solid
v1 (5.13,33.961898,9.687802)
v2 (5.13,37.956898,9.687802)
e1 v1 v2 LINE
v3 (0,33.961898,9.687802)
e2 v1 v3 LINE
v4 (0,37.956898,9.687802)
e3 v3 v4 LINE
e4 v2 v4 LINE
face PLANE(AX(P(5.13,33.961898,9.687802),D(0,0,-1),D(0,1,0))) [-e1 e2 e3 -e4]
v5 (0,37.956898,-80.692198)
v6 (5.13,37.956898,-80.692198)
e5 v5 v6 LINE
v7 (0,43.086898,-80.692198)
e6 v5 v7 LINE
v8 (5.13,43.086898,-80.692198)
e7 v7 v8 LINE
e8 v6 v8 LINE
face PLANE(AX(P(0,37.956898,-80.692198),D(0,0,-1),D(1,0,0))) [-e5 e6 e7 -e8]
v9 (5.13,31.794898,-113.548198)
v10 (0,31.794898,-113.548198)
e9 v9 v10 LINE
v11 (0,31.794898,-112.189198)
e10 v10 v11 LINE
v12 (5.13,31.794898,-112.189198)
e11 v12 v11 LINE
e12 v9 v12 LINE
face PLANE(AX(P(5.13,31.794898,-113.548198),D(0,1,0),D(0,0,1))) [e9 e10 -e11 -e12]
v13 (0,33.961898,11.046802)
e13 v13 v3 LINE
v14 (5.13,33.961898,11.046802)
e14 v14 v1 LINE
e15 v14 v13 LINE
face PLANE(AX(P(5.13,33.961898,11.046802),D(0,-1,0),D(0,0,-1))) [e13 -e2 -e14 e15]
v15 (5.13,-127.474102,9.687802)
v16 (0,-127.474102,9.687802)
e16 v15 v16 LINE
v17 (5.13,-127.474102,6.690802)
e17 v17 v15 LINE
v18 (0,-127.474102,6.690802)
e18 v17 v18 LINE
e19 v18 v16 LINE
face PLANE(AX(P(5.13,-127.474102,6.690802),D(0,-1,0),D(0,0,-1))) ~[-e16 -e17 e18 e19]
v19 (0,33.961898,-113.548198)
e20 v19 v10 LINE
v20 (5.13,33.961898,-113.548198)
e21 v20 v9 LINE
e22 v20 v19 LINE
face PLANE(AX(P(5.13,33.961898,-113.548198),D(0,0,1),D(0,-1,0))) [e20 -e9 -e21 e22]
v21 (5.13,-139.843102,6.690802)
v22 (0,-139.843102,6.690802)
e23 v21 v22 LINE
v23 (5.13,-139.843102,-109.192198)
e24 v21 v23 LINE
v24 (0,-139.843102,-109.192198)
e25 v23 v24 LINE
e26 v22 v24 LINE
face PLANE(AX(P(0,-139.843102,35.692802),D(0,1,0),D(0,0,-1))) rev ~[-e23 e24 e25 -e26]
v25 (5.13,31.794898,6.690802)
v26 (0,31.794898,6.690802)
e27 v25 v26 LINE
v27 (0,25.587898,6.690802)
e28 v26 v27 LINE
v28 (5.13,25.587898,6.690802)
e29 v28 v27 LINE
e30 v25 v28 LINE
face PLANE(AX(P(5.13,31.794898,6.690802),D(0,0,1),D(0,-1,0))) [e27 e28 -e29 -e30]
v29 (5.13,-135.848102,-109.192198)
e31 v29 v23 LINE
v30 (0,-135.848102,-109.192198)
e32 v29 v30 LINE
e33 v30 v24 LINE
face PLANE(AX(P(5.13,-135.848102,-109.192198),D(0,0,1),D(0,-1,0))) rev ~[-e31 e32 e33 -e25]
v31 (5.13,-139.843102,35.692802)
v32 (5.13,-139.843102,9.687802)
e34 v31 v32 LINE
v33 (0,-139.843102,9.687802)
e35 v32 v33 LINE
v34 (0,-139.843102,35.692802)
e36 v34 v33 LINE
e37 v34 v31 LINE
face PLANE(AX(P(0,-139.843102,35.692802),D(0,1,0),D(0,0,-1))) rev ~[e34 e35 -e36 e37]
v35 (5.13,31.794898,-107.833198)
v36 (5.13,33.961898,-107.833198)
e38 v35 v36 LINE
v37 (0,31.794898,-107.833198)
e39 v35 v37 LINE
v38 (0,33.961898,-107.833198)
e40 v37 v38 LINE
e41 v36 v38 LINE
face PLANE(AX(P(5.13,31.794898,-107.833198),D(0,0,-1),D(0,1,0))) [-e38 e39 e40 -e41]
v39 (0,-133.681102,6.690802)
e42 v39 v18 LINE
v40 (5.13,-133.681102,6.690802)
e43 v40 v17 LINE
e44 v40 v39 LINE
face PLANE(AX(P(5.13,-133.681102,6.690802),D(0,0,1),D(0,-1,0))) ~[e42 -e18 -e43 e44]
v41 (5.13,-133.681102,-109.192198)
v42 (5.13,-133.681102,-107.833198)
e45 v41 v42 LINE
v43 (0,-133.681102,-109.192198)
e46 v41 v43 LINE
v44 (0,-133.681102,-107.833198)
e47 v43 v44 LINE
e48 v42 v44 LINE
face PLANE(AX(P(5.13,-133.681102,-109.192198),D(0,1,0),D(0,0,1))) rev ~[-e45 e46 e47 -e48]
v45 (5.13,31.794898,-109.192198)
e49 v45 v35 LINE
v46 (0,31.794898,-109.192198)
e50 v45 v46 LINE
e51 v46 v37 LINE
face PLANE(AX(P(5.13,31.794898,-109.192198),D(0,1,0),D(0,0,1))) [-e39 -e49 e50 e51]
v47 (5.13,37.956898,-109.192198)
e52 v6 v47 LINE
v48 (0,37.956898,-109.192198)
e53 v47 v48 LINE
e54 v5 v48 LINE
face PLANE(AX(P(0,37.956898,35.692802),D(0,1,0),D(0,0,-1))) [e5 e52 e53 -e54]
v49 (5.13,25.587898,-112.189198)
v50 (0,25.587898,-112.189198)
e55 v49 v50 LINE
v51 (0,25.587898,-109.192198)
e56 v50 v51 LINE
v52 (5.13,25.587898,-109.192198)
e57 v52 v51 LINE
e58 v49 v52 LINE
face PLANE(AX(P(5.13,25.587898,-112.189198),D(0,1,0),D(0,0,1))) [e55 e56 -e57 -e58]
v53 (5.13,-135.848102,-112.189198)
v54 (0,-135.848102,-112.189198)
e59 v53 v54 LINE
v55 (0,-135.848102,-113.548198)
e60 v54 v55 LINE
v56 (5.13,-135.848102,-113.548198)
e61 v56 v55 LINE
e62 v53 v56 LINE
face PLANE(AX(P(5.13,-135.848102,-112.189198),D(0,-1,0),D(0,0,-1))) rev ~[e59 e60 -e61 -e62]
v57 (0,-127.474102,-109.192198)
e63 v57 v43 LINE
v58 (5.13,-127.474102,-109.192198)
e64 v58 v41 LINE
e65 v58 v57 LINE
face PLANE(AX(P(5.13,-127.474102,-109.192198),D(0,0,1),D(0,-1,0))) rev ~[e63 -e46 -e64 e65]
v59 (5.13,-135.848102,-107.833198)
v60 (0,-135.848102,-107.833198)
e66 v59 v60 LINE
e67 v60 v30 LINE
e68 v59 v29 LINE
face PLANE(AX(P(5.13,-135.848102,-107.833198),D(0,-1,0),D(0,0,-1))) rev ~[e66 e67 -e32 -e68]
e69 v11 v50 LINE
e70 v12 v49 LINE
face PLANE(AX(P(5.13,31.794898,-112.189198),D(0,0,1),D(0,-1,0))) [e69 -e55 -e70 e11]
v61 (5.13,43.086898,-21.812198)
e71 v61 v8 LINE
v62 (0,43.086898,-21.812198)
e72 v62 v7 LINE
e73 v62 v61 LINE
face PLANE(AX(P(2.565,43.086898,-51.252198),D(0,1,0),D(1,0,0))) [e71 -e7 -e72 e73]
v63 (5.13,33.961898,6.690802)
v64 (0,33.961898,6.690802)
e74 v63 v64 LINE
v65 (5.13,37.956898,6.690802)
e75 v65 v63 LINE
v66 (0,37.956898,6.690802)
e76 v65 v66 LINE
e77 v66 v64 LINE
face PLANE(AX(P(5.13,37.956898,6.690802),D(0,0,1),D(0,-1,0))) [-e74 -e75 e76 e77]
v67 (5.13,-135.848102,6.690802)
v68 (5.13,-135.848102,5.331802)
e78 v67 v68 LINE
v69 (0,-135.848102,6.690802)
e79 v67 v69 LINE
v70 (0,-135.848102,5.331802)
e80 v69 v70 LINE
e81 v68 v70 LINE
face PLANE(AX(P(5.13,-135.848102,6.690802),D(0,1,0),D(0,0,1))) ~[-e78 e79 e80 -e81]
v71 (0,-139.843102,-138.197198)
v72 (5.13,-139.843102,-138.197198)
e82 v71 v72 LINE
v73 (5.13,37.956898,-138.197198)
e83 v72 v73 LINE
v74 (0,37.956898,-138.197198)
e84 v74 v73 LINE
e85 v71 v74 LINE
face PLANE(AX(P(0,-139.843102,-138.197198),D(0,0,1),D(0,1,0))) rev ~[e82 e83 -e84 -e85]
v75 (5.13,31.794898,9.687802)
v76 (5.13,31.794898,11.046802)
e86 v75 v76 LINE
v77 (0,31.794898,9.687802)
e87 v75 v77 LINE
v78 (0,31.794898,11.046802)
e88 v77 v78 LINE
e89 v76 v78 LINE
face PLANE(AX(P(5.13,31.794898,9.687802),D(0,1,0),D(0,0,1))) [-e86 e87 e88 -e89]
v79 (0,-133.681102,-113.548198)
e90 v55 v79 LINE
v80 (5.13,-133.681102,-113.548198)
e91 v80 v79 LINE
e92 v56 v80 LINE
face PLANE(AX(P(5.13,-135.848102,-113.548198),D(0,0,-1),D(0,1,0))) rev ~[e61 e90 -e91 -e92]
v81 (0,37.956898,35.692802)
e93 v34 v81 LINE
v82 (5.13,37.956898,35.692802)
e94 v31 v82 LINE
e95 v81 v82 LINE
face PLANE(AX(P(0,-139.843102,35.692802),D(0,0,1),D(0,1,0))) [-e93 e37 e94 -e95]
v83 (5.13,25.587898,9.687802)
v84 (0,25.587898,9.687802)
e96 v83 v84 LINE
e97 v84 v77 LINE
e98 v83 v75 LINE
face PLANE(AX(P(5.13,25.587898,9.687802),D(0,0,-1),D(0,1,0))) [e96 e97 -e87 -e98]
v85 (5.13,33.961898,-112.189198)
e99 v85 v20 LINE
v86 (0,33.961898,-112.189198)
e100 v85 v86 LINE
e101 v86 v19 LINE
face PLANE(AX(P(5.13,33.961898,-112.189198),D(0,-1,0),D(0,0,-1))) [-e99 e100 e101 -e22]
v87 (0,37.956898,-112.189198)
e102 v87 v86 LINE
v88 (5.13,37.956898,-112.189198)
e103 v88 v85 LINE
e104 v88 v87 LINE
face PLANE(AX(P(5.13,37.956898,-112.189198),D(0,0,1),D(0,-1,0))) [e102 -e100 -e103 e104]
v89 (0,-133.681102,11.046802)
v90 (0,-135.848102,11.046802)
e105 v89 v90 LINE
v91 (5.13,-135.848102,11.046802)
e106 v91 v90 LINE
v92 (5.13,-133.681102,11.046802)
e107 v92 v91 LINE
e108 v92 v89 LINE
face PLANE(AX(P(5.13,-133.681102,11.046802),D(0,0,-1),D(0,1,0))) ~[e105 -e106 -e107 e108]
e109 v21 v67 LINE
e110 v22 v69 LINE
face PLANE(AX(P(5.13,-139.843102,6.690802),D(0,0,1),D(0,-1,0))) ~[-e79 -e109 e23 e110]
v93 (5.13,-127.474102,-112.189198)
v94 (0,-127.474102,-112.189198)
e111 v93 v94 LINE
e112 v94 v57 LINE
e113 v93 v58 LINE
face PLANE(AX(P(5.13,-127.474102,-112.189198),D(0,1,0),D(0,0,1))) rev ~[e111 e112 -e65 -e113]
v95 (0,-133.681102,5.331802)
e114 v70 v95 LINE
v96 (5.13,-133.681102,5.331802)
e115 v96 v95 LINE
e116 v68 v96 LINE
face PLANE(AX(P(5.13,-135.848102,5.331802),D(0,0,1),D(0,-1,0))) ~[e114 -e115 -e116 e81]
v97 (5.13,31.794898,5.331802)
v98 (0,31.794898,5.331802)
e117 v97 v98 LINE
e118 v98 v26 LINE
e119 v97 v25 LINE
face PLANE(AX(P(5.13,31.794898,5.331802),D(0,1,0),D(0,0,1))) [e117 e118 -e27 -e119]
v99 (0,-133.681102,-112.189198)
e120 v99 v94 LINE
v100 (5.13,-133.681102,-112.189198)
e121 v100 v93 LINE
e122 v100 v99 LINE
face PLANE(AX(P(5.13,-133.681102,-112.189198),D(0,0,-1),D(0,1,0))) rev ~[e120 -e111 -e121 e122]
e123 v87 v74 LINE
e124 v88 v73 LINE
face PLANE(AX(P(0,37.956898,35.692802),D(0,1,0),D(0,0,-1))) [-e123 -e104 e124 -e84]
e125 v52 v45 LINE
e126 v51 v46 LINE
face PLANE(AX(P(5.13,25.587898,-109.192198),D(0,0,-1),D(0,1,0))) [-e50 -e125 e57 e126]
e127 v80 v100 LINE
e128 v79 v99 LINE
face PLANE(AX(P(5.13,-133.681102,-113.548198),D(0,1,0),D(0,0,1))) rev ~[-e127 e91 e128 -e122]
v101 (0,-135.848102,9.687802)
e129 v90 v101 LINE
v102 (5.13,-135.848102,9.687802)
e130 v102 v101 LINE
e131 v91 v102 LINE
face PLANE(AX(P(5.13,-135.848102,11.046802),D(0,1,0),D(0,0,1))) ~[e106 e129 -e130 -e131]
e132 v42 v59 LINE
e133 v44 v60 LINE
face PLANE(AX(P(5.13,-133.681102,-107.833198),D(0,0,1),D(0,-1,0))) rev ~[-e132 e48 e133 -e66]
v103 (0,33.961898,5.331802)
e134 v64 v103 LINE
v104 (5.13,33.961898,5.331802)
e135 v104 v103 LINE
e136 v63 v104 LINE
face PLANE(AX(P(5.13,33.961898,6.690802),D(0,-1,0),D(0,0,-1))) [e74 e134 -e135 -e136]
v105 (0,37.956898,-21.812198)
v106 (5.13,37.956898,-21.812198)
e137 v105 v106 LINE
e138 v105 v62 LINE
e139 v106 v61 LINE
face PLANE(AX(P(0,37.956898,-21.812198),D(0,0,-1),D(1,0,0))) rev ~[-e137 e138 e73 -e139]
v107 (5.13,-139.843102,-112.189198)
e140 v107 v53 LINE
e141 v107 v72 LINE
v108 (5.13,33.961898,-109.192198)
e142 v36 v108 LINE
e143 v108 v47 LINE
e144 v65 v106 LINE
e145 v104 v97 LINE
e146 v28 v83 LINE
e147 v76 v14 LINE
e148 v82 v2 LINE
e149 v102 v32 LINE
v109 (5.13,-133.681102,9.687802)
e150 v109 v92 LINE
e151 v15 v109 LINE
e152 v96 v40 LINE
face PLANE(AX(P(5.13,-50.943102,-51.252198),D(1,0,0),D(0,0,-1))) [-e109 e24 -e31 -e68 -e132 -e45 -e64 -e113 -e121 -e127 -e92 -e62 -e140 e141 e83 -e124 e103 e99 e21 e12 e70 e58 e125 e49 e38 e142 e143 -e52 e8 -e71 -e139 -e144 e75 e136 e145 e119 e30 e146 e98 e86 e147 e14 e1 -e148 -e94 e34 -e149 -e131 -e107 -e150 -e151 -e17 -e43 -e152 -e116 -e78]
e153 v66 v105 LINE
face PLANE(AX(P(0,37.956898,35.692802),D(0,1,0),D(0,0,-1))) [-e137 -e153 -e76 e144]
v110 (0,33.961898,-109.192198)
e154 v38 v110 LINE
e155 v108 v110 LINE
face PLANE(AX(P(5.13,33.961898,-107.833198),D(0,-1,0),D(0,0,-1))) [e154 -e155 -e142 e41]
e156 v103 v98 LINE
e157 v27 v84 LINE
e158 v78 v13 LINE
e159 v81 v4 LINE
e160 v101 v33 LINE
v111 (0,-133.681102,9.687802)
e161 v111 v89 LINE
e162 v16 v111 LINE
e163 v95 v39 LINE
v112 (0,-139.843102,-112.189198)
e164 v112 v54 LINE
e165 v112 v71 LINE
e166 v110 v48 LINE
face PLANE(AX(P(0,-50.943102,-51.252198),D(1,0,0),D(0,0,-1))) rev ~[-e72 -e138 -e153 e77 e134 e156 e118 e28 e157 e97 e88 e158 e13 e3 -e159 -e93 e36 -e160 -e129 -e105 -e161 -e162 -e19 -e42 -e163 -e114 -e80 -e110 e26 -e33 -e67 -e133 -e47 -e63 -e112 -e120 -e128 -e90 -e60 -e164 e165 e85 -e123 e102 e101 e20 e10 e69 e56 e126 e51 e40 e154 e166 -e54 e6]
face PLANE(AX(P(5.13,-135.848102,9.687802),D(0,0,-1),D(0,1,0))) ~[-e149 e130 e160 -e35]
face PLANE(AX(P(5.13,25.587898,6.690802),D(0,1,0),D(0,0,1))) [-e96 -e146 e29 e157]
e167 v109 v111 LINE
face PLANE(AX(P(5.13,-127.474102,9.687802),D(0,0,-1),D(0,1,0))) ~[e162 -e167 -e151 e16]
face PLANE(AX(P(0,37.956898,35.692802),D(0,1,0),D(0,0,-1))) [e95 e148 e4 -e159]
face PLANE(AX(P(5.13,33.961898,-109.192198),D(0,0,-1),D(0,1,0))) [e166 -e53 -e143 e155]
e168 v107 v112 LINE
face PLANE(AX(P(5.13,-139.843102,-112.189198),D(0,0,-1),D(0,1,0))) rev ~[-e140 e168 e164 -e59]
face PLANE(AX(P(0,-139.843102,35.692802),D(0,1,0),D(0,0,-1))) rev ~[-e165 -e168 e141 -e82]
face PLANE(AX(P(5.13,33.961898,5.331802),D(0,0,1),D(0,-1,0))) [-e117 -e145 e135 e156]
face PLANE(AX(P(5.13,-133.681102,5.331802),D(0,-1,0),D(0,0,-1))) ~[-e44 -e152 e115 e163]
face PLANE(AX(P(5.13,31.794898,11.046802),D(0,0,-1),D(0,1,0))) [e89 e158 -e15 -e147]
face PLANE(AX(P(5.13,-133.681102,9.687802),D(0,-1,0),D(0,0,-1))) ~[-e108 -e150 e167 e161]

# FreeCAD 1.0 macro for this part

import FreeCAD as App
import Part
import Sketcher
Q = App.Units.Quantity

doc = App.newDocument("Part")
body = doc.addObject("PartDesign::Body", "Body")

# Sketch on YZ plane
sketch1 = body.newObject("Sketcher::SketchObject", "Sketch")
sketch1.AttachmentSupport = (doc.getObject("YZ_Plane"), [""])
sketch1.MapMode = "FlatFace"
sketch1.addGeometry([
    Part.LineSegment(App.Vector(38, 36, 0), App.Vector(-140, 36, 0)),
    Part.LineSegment(App.Vector(-140, 36, 0), App.Vector(-140, -138, 0)),
    Part.LineSegment(App.Vector(-140, -138, 0), App.Vector(38, -138, 0)),
    Part.LineSegment(App.Vector(38, -138, 0), App.Vector(38, 36, 0)),
], False)
sketch1.addConstraint([
    Sketcher.Constraint("Coincident", 0, 2, 1, 1),
    Sketcher.Constraint("Coincident", 1, 2, 2, 1),
    Sketcher.Constraint("Coincident", 2, 2, 3, 1),
    Sketcher.Constraint("Coincident", 3, 2, 0, 1),
    Sketcher.Constraint("Horizontal", 0),
    Sketcher.Constraint("Vertical", 1),
    Sketcher.Constraint("Horizontal", 2),
    Sketcher.Constraint("Vertical", 3),
    Sketcher.Constraint("DistanceX", 0, 2, 0, 1, Q("7 in")),
    Sketcher.Constraint("DistanceY", 1, 2, 1, 1, 173.89),
    Sketcher.Constraint("DistanceX", 0, 2, -1, 1, 139.843102),
    Sketcher.Constraint("DistanceY", -1, 1, 0, 2, 35.692802),
])
pad1 = body.newObject("PartDesign::Pad", "Pad")
pad1.Profile = sketch1
pad1.Length = 5.13

# Sketch on YZ plane
sketch2 = body.newObject("Sketcher::SketchObject", "Sketch001")
sketch2.AttachmentSupport = (doc.getObject("YZ_Plane"), [""])
sketch2.MapMode = "FlatFace"
sketch2.AttachmentOffset = App.Placement(App.Vector(0, 0, 5.13), App.Rotation())
sketch2.addGeometry([
    Part.LineSegment(App.Vector(38, 6.7, 0), App.Vector(38, 9.7, 0)),  # 0
    Part.LineSegment(App.Vector(38, 9.7, 0), App.Vector(34, 9.7, 0)),  # 1
    Part.LineSegment(App.Vector(34, 9.7, 0), App.Vector(34, 11, 0)),  # 2
    Part.LineSegment(App.Vector(34, 11, 0), App.Vector(31.8, 11, 0)),  # 3
    Part.LineSegment(App.Vector(31.8, 11, 0), App.Vector(31.8, 9.7, 0)),  # 4
    Part.LineSegment(App.Vector(31.8, 9.7, 0), App.Vector(25.6, 9.7, 0)),  # 5
    Part.LineSegment(App.Vector(25.6, 9.7, 0), App.Vector(25.6, 6.7, 0)),  # 6
    Part.LineSegment(App.Vector(25.6, 6.7, 0), App.Vector(31.8, 6.7, 0)),  # 7
    Part.LineSegment(App.Vector(31.8, 6.7, 0), App.Vector(31.8, 5.3, 0)),  # 8
    Part.LineSegment(App.Vector(31.8, 5.3, 0), App.Vector(34, 5.3, 0)),  # 9
    Part.LineSegment(App.Vector(34, 5.3, 0), App.Vector(34, 6.7, 0)),  # 10
    Part.LineSegment(App.Vector(34, 6.7, 0), App.Vector(38, 6.7, 0)),  # 11
], False)
sketch2.addConstraint([
    Sketcher.Constraint("Coincident", 0, 2, 1, 1),
    Sketcher.Constraint("Coincident", 1, 2, 2, 1),
    Sketcher.Constraint("Coincident", 2, 2, 3, 1),
    Sketcher.Constraint("Coincident", 3, 2, 4, 1),
    Sketcher.Constraint("Coincident", 4, 2, 5, 1),
    Sketcher.Constraint("Coincident", 5, 2, 6, 1),
    Sketcher.Constraint("Coincident", 6, 2, 7, 1),
    Sketcher.Constraint("Coincident", 7, 2, 8, 1),
    Sketcher.Constraint("Coincident", 8, 2, 9, 1),
    Sketcher.Constraint("Coincident", 9, 2, 10, 1),
    Sketcher.Constraint("Coincident", 10, 2, 11, 1),
    Sketcher.Constraint("Coincident", 11, 2, 0, 1),
    Sketcher.Constraint("Vertical", 0),
    Sketcher.Constraint("Horizontal", 1),
    Sketcher.Constraint("Vertical", 2),
    Sketcher.Constraint("Horizontal", 3),
    Sketcher.Constraint("Vertical", 4),
    Sketcher.Constraint("Horizontal", 5),
    Sketcher.Constraint("Vertical", 6),
    Sketcher.Constraint("Horizontal", 7),
    Sketcher.Constraint("Vertical", 8),
    Sketcher.Constraint("Horizontal", 9),
    Sketcher.Constraint("Vertical", 10),
    Sketcher.Constraint("Horizontal", 11),
    Sketcher.Constraint("Horizontal", 1, 2, 4, 2),
    Sketcher.Constraint("Horizontal", 7, 2, 10, 2),
    Sketcher.Constraint("Vertical", 4, 2, 7, 2),
    Sketcher.Constraint("Vertical", 2, 2, 9, 2),
    Sketcher.Constraint("Equal", 4, 8),
    Sketcher.Constraint("DistanceY", 8, 2, 3, 2, Q("0.225 in")),
    Sketcher.Constraint("DistanceX", 1, 2, 1, 1, 3.995),
    Sketcher.Constraint("DistanceX", 3, 2, 3, 1, 2.167),
    Sketcher.Constraint("DistanceX", 5, 2, 5, 1, 6.207),
    Sketcher.Constraint("DistanceY", 0, 1, 0, 2, 2.997),
    Sketcher.Constraint("DistanceX", -1, 1, 0, 2, 37.956898),
    Sketcher.Constraint("DistanceY", -1, 1, 0, 2, 9.687802),
])
pocket1 = body.newObject("PartDesign::Pocket", "Pocket")
pocket1.Profile = sketch2
pocket1.Length = 5.13
doc.recompute()

linearpattern = body.newObject("PartDesign::LinearPattern", "LinearPattern")
linearpattern.Originals = [pocket1]
linearpattern.Direction = (doc.getObject("Z_Axis"), [""])
linearpattern.Mode = "offset"
linearpattern.Offset = 118.88
linearpattern.Occurrences = 2
linearpattern.Reversed = True
body.Tip = linearpattern
doc.recompute()

datumplane = body.newObject("PartDesign::Plane", "DatumPlane")
datumplane.AttachmentSupport = (doc.getObject("XZ_Plane"), [""])
datumplane.MapMode = "FlatFace"
datumplane.AttachmentOffset = App.Placement(App.Vector(0, 0, 50.943102), App.Rotation())
mirrored = body.newObject("PartDesign::Mirrored", "Mirrored")
mirrored.Originals = [pocket1]
mirrored.MirrorPlane = (datumplane, [""])
body.Tip = mirrored

# Sketch on YZ plane
sketch3 = body.newObject("Sketcher::SketchObject", "Sketch002")
sketch3.AttachmentSupport = (doc.getObject("YZ_Plane"), [""])
sketch3.MapMode = "FlatFace"
sketch3.AttachmentOffset = App.Placement(App.Vector(0, 0, 5.13), App.Rotation())
sketch3.addGeometry([
    Part.LineSegment(App.Vector(-139.8, -109.2, 0), App.Vector(-139.8, -112.2, 0)),  # 0
    Part.LineSegment(App.Vector(-139.8, -112.2, 0), App.Vector(-135.8, -112.2, 0)),  # 1
    Part.LineSegment(App.Vector(-135.8, -112.2, 0), App.Vector(-135.8, -113.5, 0)),  # 2
    Part.LineSegment(App.Vector(-135.8, -113.5, 0), App.Vector(-133.7, -113.5, 0)),  # 3
    Part.LineSegment(App.Vector(-133.7, -113.5, 0), App.Vector(-133.7, -112.2, 0)),  # 4
    Part.LineSegment(App.Vector(-133.7, -112.2, 0), App.Vector(-127.5, -112.2, 0)),  # 5
    Part.LineSegment(App.Vector(-127.5, -112.2, 0), App.Vector(-127.5, -109.2, 0)),  # 6
    Part.LineSegment(App.Vector(-127.5, -109.2, 0), App.Vector(-133.7, -109.2, 0)),  # 7
    Part.LineSegment(App.Vector(-133.7, -109.2, 0), App.Vector(-133.7, -107.8, 0)),  # 8
    Part.LineSegment(App.Vector(-133.7, -107.8, 0), App.Vector(-135.8, -107.8, 0)),  # 9
    Part.LineSegment(App.Vector(-135.8, -107.8, 0), App.Vector(-135.8, -109.2, 0)),  # 10
    Part.LineSegment(App.Vector(-135.8, -109.2, 0), App.Vector(-139.8, -109.2, 0)),  # 11
], False)
sketch3.addConstraint([
    Sketcher.Constraint("Coincident", 0, 2, 1, 1),
    Sketcher.Constraint("Coincident", 1, 2, 2, 1),
    Sketcher.Constraint("Coincident", 2, 2, 3, 1),
    Sketcher.Constraint("Coincident", 3, 2, 4, 1),
    Sketcher.Constraint("Coincident", 4, 2, 5, 1),
    Sketcher.Constraint("Coincident", 5, 2, 6, 1),
    Sketcher.Constraint("Coincident", 6, 2, 7, 1),
    Sketcher.Constraint("Coincident", 7, 2, 8, 1),
    Sketcher.Constraint("Coincident", 8, 2, 9, 1),
    Sketcher.Constraint("Coincident", 9, 2, 10, 1),
    Sketcher.Constraint("Coincident", 10, 2, 11, 1),
    Sketcher.Constraint("Coincident", 11, 2, 0, 1),
    Sketcher.Constraint("Vertical", 0),
    Sketcher.Constraint("Horizontal", 1),
    Sketcher.Constraint("Vertical", 2),
    Sketcher.Constraint("Horizontal", 3),
    Sketcher.Constraint("Vertical", 4),
    Sketcher.Constraint("Horizontal", 5),
    Sketcher.Constraint("Vertical", 6),
    Sketcher.Constraint("Horizontal", 7),
    Sketcher.Constraint("Vertical", 8),
    Sketcher.Constraint("Horizontal", 9),
    Sketcher.Constraint("Vertical", 10),
    Sketcher.Constraint("Horizontal", 11),
    Sketcher.Constraint("Horizontal", 1, 2, 4, 2),
    Sketcher.Constraint("Horizontal", 7, 2, 10, 2),
    Sketcher.Constraint("Vertical", 4, 2, 7, 2),
    Sketcher.Constraint("Vertical", 2, 2, 9, 2),
    Sketcher.Constraint("Equal", 4, 8),
    Sketcher.Constraint("DistanceY", 3, 2, 8, 2, Q("0.225 in")),
    Sketcher.Constraint("DistanceX", 1, 1, 1, 2, 3.995),
    Sketcher.Constraint("DistanceX", 3, 1, 3, 2, 2.167),
    Sketcher.Constraint("DistanceX", 5, 1, 5, 2, 6.207),
    Sketcher.Constraint("DistanceY", 0, 2, 0, 1, 2.997),
    Sketcher.Constraint("DistanceX", 0, 2, -1, 1, 139.843102),
    Sketcher.Constraint("DistanceY", 0, 2, -1, 1, 112.189198),
])
pocket2 = body.newObject("PartDesign::Pocket", "Pocket001")
pocket2.Profile = sketch3
pocket2.Length = 5.13

# Sketch on XZ plane
sketch4 = body.newObject("Sketcher::SketchObject", "Sketch003")
sketch4.AttachmentSupport = (doc.getObject("XZ_Plane"), [""])
sketch4.MapMode = "FlatFace"
sketch4.AttachmentOffset = App.Placement(App.Vector(0, 0, -37.956898), App.Rotation())
sketch4.addGeometry([
    Part.LineSegment(App.Vector(0, -81, 0), App.Vector(0, -22, 0)),
    Part.LineSegment(App.Vector(0, -22, 0), App.Vector(5, -22, 0)),
    Part.LineSegment(App.Vector(5, -22, 0), App.Vector(5, -81, 0)),
    Part.LineSegment(App.Vector(5, -81, 0), App.Vector(0, -81, 0)),
], False)
sketch4.addConstraint([
    Sketcher.Constraint("Coincident", 0, 2, 1, 1),
    Sketcher.Constraint("Coincident", 1, 2, 2, 1),
    Sketcher.Constraint("Coincident", 2, 2, 3, 1),
    Sketcher.Constraint("Coincident", 3, 2, 0, 1),
    Sketcher.Constraint("Vertical", 0),
    Sketcher.Constraint("Horizontal", 1),
    Sketcher.Constraint("Vertical", 2),
    Sketcher.Constraint("Horizontal", 3),
    Sketcher.Constraint("PointOnObject", 0, 2, -2),
    Sketcher.Constraint("DistanceX", 1, 1, 1, 2, 5.13),
    Sketcher.Constraint("DistanceY", 0, 1, 0, 2, 58.88),
    Sketcher.Constraint("DistanceY", 0, 2, -1, 1, 21.812198),
])
pad2 = body.newObject("PartDesign::Pad", "Pad001")
pad2.Profile = sketch4
pad2.Length = 5.13
pad2.Reversed = True

doc.recompute()
